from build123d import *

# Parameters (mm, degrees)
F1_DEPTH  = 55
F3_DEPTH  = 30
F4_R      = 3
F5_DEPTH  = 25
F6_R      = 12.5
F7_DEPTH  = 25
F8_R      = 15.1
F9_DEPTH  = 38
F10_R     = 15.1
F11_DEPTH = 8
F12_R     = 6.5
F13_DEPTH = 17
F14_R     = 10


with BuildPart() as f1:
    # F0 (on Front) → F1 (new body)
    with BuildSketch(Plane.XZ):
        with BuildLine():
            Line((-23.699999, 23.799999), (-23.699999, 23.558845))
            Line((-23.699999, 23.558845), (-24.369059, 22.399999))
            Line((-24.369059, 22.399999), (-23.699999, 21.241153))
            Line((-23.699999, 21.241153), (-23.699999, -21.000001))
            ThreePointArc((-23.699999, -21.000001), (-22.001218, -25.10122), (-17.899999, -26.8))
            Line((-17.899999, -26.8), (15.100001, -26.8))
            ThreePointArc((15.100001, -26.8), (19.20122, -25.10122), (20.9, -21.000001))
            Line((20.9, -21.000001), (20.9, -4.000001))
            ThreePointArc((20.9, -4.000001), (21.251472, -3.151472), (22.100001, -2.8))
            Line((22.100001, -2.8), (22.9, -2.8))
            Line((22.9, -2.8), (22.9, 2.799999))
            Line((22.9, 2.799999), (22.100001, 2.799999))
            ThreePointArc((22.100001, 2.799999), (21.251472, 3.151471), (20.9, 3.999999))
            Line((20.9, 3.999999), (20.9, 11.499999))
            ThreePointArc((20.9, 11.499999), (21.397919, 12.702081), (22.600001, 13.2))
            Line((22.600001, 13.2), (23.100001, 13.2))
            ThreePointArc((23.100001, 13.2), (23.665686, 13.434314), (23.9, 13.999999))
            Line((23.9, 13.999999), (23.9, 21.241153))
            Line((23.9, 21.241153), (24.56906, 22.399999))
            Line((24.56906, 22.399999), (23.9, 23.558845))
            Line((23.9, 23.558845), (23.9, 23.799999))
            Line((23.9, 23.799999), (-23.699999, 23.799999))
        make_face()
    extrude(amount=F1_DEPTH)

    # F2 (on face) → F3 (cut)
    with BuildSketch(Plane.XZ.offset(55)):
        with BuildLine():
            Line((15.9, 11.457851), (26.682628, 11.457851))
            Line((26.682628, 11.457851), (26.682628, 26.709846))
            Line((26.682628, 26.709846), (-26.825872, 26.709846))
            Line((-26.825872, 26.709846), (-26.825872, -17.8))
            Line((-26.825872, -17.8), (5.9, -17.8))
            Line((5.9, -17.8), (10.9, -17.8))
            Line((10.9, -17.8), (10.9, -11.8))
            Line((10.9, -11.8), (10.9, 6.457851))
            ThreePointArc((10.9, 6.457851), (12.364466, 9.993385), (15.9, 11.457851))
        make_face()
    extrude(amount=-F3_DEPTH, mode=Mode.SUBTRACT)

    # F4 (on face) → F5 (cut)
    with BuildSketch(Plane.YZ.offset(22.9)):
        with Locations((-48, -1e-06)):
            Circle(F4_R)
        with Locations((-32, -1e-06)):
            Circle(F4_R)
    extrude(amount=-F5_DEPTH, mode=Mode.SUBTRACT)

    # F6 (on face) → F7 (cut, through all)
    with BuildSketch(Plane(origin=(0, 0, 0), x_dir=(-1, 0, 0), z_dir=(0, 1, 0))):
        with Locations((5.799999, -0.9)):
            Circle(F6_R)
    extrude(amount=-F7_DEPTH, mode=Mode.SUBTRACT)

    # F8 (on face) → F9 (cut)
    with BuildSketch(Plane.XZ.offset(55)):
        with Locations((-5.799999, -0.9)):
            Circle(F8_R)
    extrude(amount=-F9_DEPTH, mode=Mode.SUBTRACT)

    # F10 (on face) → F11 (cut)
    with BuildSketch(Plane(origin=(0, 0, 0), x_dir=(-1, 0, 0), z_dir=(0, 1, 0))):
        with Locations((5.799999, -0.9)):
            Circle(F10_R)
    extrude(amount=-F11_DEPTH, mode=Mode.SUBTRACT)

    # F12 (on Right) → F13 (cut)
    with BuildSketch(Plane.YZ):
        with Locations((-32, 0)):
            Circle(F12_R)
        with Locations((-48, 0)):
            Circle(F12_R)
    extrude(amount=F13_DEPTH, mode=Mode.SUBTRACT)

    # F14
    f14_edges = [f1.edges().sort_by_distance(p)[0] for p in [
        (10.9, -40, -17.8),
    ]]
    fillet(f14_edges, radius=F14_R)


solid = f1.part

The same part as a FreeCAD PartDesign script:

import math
import FreeCAD as App
import Part
import Sketcher
Q = App.Units.Quantity


def edges_at(feature, points):
    """Names of the edges that pass closest to the given points."""
    edges = feature.Shape.Edges
    near = lambda p: min(range(len(edges)), key=lambda i: edges[i].distToShape(Part.Vertex(*p))[0])
    return sorted({f"Edge{near(p) + 1}" for p in points})

doc = App.newDocument("Part")
body = doc.addObject("PartDesign::Body", "Body")

sketch1 = doc.addObject("Sketcher::SketchObject", "Sketch")
body.addObject(sketch1)
sketch1.AttachmentSupport = (doc.XZ_Plane, [""])
sketch1.MapMode = "FlatFace"
sketch1.addGeometry(Part.LineSegment(App.Vector(-23.7, 23.8, 0), App.Vector(-23.7, 23.56, 0)), False)
sketch1.addGeometry(Part.LineSegment(App.Vector(-23.7, 23.56, 0), App.Vector(-24.37, 22.4, 0)), False)
sketch1.addGeometry(Part.LineSegment(App.Vector(-24.37, 22.4, 0), App.Vector(-23.7, 21.24, 0)), False)
sketch1.addGeometry(Part.LineSegment(App.Vector(-23.7, 21.24, 0), App.Vector(-23.7, -21, 0)), False)
sketch1.addGeometry(Part.ArcOfCircle(Part.Circle(App.Vector(-17.9, -21, 0), App.Vector(0, 0, 1), 5.8), math.radians(-180), math.radians(-90)), False)
sketch1.addGeometry(Part.LineSegment(App.Vector(-17.9, -26.8, 0), App.Vector(15.1, -26.8, 0)), False)
sketch1.addGeometry(Part.ArcOfCircle(Part.Circle(App.Vector(15.1, -21, 0), App.Vector(0, 0, 1), 5.8), math.radians(-90), math.radians(0)), False)
sketch1.addGeometry(Part.LineSegment(App.Vector(20.9, -21, 0), App.Vector(20.9, -4, 0)), False)
sketch1.addGeometry(Part.ArcOfCircle(Part.Circle(App.Vector(22.1, -4, 0), App.Vector(0, 0, 1), 1.2), math.radians(90), math.radians(180)), False)
sketch1.addGeometry(Part.LineSegment(App.Vector(22.1, -2.8, 0), App.Vector(22.9, -2.8, 0)), False)
sketch1.addGeometry(Part.LineSegment(App.Vector(22.9, -2.8, 0), App.Vector(22.9, 2.8, 0)), False)
sketch1.addGeometry(Part.LineSegment(App.Vector(22.9, 2.8, 0), App.Vector(22.1, 2.8, 0)), False)
sketch1.addGeometry(Part.ArcOfCircle(Part.Circle(App.Vector(22.1, 4, 0), App.Vector(0, 0, 1), 1.2), math.radians(-180), math.radians(-90)), False)
sketch1.addGeometry(Part.LineSegment(App.Vector(20.9, 4, 0), App.Vector(20.9, 11.5, 0)), False)
sketch1.addGeometry(Part.ArcOfCircle(Part.Circle(App.Vector(22.6, 11.5, 0), App.Vector(0, 0, 1), 1.7), math.radians(90), math.radians(180)), False)
sketch1.addGeometry(Part.LineSegment(App.Vector(22.6, 13.2, 0), App.Vector(23.1, 13.2, 0)), False)
sketch1.addGeometry(Part.ArcOfCircle(Part.Circle(App.Vector(23.1, 14, 0), App.Vector(0, 0, 1), 0.8), math.radians(-90), math.radians(0)), False)
sketch1.addGeometry(Part.LineSegment(App.Vector(23.9, 14, 0), App.Vector(23.9, 21.24, 0)), False)
sketch1.addGeometry(Part.LineSegment(App.Vector(23.9, 21.24, 0), App.Vector(24.57, 22.4, 0)), False)
sketch1.addGeometry(Part.LineSegment(App.Vector(24.57, 22.4, 0), App.Vector(23.9, 23.56, 0)), False)
sketch1.addGeometry(Part.LineSegment(App.Vector(23.9, 23.56, 0), App.Vector(23.9, 23.8, 0)), False)
sketch1.addGeometry(Part.LineSegment(App.Vector(23.9, 23.8, 0), App.Vector(-23.7, 23.8, 0)), False)
sketch1.addConstraint(Sketcher.Constraint("Coincident", 0, 2, 1, 1))
sketch1.addConstraint(Sketcher.Constraint("Coincident", 1, 2, 2, 1))
sketch1.addConstraint(Sketcher.Constraint("Coincident", 2, 2, 3, 1))
sketch1.addConstraint(Sketcher.Constraint("Tangent", 3, 2, 4, 1))
sketch1.addConstraint(Sketcher.Constraint("Tangent", 4, 2, 5, 1))
sketch1.addConstraint(Sketcher.Constraint("Tangent", 5, 2, 6, 1))
sketch1.addConstraint(Sketcher.Constraint("Tangent", 6, 2, 7, 1))
sketch1.addConstraint(Sketcher.Constraint("Tangent", 7, 2, 8, 2))
sketch1.addConstraint(Sketcher.Constraint("Tangent", 8, 1, 9, 1))
sketch1.addConstraint(Sketcher.Constraint("Coincident", 9, 2, 10, 1))
sketch1.addConstraint(Sketcher.Constraint("Coincident", 10, 2, 11, 1))
sketch1.addConstraint(Sketcher.Constraint("Tangent", 11, 2, 12, 2))
sketch1.addConstraint(Sketcher.Constraint("Tangent", 12, 1, 13, 1))
sketch1.addConstraint(Sketcher.Constraint("Tangent", 13, 2, 14, 2))
sketch1.addConstraint(Sketcher.Constraint("Tangent", 14, 1, 15, 1))
sketch1.addConstraint(Sketcher.Constraint("Tangent", 15, 2, 16, 1))
sketch1.addConstraint(Sketcher.Constraint("Tangent", 16, 2, 17, 1))
sketch1.addConstraint(Sketcher.Constraint("Coincident", 17, 2, 18, 1))
sketch1.addConstraint(Sketcher.Constraint("Coincident", 18, 2, 19, 1))
sketch1.addConstraint(Sketcher.Constraint("Coincident", 19, 2, 20, 1))
sketch1.addConstraint(Sketcher.Constraint("Coincident", 20, 2, 21, 1))
sketch1.addConstraint(Sketcher.Constraint("Coincident", 21, 2, 0, 1))
sketch1.addConstraint(Sketcher.Constraint("Vertical", 0))
sketch1.addConstraint(Sketcher.Constraint("Vertical", 3))
sketch1.addConstraint(Sketcher.Constraint("Horizontal", 5))
sketch1.addConstraint(Sketcher.Constraint("Vertical", 7))
sketch1.addConstraint(Sketcher.Constraint("Horizontal", 9))
sketch1.addConstraint(Sketcher.Constraint("Vertical", 10))
sketch1.addConstraint(Sketcher.Constraint("Horizontal", 11))
sketch1.addConstraint(Sketcher.Constraint("Vertical", 13))
sketch1.addConstraint(Sketcher.Constraint("Horizontal", 15))
sketch1.addConstraint(Sketcher.Constraint("Vertical", 17))
sketch1.addConstraint(Sketcher.Constraint("Vertical", 20))
sketch1.addConstraint(Sketcher.Constraint("Horizontal", 21))
sketch1.addConstraint(Sketcher.Constraint("Equal", 4, 6))
sketch1.addConstraint(Sketcher.Constraint("Equal", 8, 12))
sketch1.addConstraint(Sketcher.Constraint("Symmetric", 8, 3, 12, 3, -1))
sketch1.addConstraint(Sketcher.Constraint("Parallel", 1, 18))
sketch1.addConstraint(Sketcher.Constraint("Parallel", 2, 19))
sketch1.addConstraint(Sketcher.Constraint("Horizontal", 2, 2, 17, 2))
sketch1.addConstraint(Sketcher.Constraint("Horizontal", 1, 2, 18, 2))
sketch1.addConstraint(Sketcher.Constraint("Horizontal", 0, 2, 19, 2))
sketch1.addConstraint(Sketcher.Constraint("Vertical", 0, 2, 2, 2))
sketch1.addConstraint(Sketcher.Constraint("Vertical", 17, 2, 19, 2))
sketch1.addConstraint(Sketcher.Constraint("Radius", 4, 5.799999))
sketch1.addConstraint(Sketcher.Constraint("Radius", 8, 1.2))
sketch1.addConstraint(Sketcher.Constraint("Radius", 14, 1.700002))
sketch1.addConstraint(Sketcher.Constraint("Radius", 16, 0.799998))
sketch1.addConstraint(Sketcher.Constraint("DistanceX", 5, 1, 5, 2, 33.0))
sketch1.addConstraint(Sketcher.Constraint("DistanceY", 7, 1, 7, 2, 17.0))
sketch1.addConstraint(Sketcher.Constraint("Angle", 1, Q("-119.999998 deg")))
sketch1.addConstraint(Sketcher.Constraint("DistanceX", 9, 1, 9, 2, 0.799999))
sketch1.addConstraint(Sketcher.Constraint("DistanceX", 15, 1, 15, 2, 0.5))
sketch1.addConstraint(Sketcher.Constraint("DistanceY", 10, 1, 10, 2, 5.599999))
sketch1.addConstraint(Sketcher.Constraint("DistanceY", 13, 1, 13, 2, 7.5))
sketch1.addConstraint(Sketcher.Constraint("DistanceX", 4, 3, -1, 1, 17.9))
sketch1.addConstraint(Sketcher.Constraint("DistanceY", -1, 1, 1, 2, 22.399999))
sketch1.addConstraint(Sketcher.Constraint("DistanceY", -1, 1, 20, 2, 23.799999))
sketch1.addConstraint(Sketcher.Constraint("Distance", 1, 1.33812))
pad1 = doc.addObject("PartDesign::Pad", "Pad")
body.addObject(pad1)
pad1.Profile = sketch1
pad1.Length = 55

sketch2 = doc.addObject("Sketcher::SketchObject", "Sketch001")
body.addObject(sketch2)
sketch2.AttachmentSupport = (doc.XZ_Plane, [""])
sketch2.MapMode = "FlatFace"
sketch2.AttachmentOffset = App.Placement(App.Vector(0, 0, 55), App.Rotation())
sketch2.addGeometry(Part.LineSegment(App.Vector(15.9, 11.5, 0), App.Vector(26.7, 11.5, 0)), False)
sketch2.addGeometry(Part.LineSegment(App.Vector(26.7, 11.5, 0), App.Vector(26.7, 26.7, 0)), False)
sketch2.addGeometry(Part.LineSegment(App.Vector(26.7, 26.7, 0), App.Vector(-26.8, 26.7, 0)), False)
sketch2.addGeometry(Part.LineSegment(App.Vector(-26.8, 26.7, 0), App.Vector(-26.8, -17.8, 0)), False)
sketch2.addGeometry(Part.LineSegment(App.Vector(-26.8, -17.8, 0), App.Vector(10.9, -17.8, 0)), False)
sketch2.addGeometry(Part.LineSegment(App.Vector(10.9, -17.8, 0), App.Vector(10.9, 6.5, 0)), False)
sketch2.addGeometry(Part.ArcOfCircle(Part.Circle(App.Vector(15.9, 6.5, 0), App.Vector(0, 0, 1), 5), math.radians(90), math.radians(180)), False)
sketch2.addConstraint(Sketcher.Constraint("Coincident", 0, 2, 1, 1))
sketch2.addConstraint(Sketcher.Constraint("Coincident", 1, 2, 2, 1))
sketch2.addConstraint(Sketcher.Constraint("Coincident", 2, 2, 3, 1))
sketch2.addConstraint(Sketcher.Constraint("Coincident", 3, 2, 4, 1))
sketch2.addConstraint(Sketcher.Constraint("Coincident", 4, 2, 5, 1))
sketch2.addConstraint(Sketcher.Constraint("Tangent", 5, 2, 6, 2))
sketch2.addConstraint(Sketcher.Constraint("Tangent", 6, 1, 0, 1))
sketch2.addConstraint(Sketcher.Constraint("Horizontal", 0))
sketch2.addConstraint(Sketcher.Constraint("Vertical", 1))
sketch2.addConstraint(Sketcher.Constraint("Horizontal", 2))
sketch2.addConstraint(Sketcher.Constraint("Vertical", 3))
sketch2.addConstraint(Sketcher.Constraint("Horizontal", 4))
sketch2.addConstraint(Sketcher.Constraint("Vertical", 5))
sketch2.addConstraint(Sketcher.Constraint("Radius", 6, 5.0))
sketch2.addConstraint(Sketcher.Constraint("DistanceX", -1, 1, 6, 3, 15.9))
sketch2.addConstraint(Sketcher.Constraint("DistanceY", 3, 2, -1, 1, 17.8))
sketch2.addConstraint(Sketcher.Constraint("DistanceX", 2, 2, 2, 1, 53.5085))
sketch2.addConstraint(Sketcher.Constraint("DistanceX", 0, 1, 0, 2, 10.782628))
sketch2.addConstraint(Sketcher.Constraint("DistanceY", 5, 1, 5, 2, 24.257851))
sketch2.addConstraint(Sketcher.Constraint("DistanceY", 1, 1, 1, 2, 15.251995))
pocket1 = doc.addObject("PartDesign::Pocket", "Pocket")
body.addObject(pocket1)
pocket1.Profile = sketch2
pocket1.Length = 30

sketch3 = doc.addObject("Sketcher::SketchObject", "Sketch002")
body.addObject(sketch3)
sketch3.AttachmentSupport = (doc.YZ_Plane, [""])
sketch3.MapMode = "FlatFace"
sketch3.AttachmentOffset = App.Placement(App.Vector(0, 0, 22.9), App.Rotation())
sketch3.addGeometry(Part.Circle(App.Vector(-48, 0, 0), App.Vector(0, 0, 1), 3), False)
sketch3.addGeometry(Part.Circle(App.Vector(-32, 0, 0), App.Vector(0, 0, 1), 3), False)
sketch3.addConstraint(Sketcher.Constraint("Equal", 0, 1))
sketch3.addConstraint(Sketcher.Constraint("PointOnObject", 0, 3, -1))
sketch3.addConstraint(Sketcher.Constraint("PointOnObject", 1, 3, -1))
sketch3.addConstraint(Sketcher.Constraint("Diameter", 0, 6.0))
sketch3.addConstraint(Sketcher.Constraint("DistanceX", 0, 3, -1, 1, 48.0))
sketch3.addConstraint(Sketcher.Constraint("DistanceX", 1, 3, -1, 1, 32.0))
pocket2 = doc.addObject("PartDesign::Pocket", "Pocket001")
body.addObject(pocket2)
pocket2.Profile = sketch3
pocket2.Length = 25

sketch4 = doc.addObject("Sketcher::SketchObject", "Sketch003")
body.addObject(sketch4)
sketch4.AttachmentSupport = (doc.XZ_Plane, [""])
sketch4.MapMode = "FlatFace"
sketch4.addGeometry(Part.Circle(App.Vector(-6, -1, 0), App.Vector(0, 0, 1), 12), False)
sketch4.addConstraint(Sketcher.Constraint("Diameter", 0, 25.0))
sketch4.addConstraint(Sketcher.Constraint("DistanceX", 0, 3, -1, 1, 5.799999))
sketch4.addConstraint(Sketcher.Constraint("DistanceY", 0, 3, -1, 1, 0.9))
pocket3 = doc.addObject("PartDesign::Pocket", "Pocket002")
body.addObject(pocket3)
pocket3.Profile = sketch4
pocket3.Type = "ThroughAll"
pocket3.Reversed = True

sketch5 = doc.addObject("Sketcher::SketchObject", "Sketch004")
body.addObject(sketch5)
sketch5.AttachmentSupport = (doc.XZ_Plane, [""])
sketch5.MapMode = "FlatFace"
sketch5.AttachmentOffset = App.Placement(App.Vector(0, 0, 55), App.Rotation())
sketch5.addGeometry(Part.Circle(App.Vector(-6, -1, 0), App.Vector(0, 0, 1), 15), False)
sketch5.addConstraint(Sketcher.Constraint("Diameter", 0, 30.2))
sketch5.addConstraint(Sketcher.Constraint("DistanceX", 0, 3, -1, 1, 5.799999))
sketch5.addConstraint(Sketcher.Constraint("DistanceY", 0, 3, -1, 1, 0.9))
pocket4 = doc.addObject("PartDesign::Pocket", "Pocket003")
body.addObject(pocket4)
pocket4.Profile = sketch5
pocket4.Length = 38

sketch6 = doc.addObject("Sketcher::SketchObject", "Sketch005")
body.addObject(sketch6)
sketch6.AttachmentSupport = (doc.XZ_Plane, [""])
sketch6.MapMode = "FlatFace"
sketch6.addGeometry(Part.Circle(App.Vector(-6, -1, 0), App.Vector(0, 0, 1), 15), False)
sketch6.addConstraint(Sketcher.Constraint("Diameter", 0, 30.2))
sketch6.addConstraint(Sketcher.Constraint("DistanceX", 0, 3, -1, 1, 5.799999))
sketch6.addConstraint(Sketcher.Constraint("DistanceY", 0, 3, -1, 1, 0.9))
pocket5 = doc.addObject("PartDesign::Pocket", "Pocket004")
body.addObject(pocket5)
pocket5.Profile = sketch6
pocket5.Length = 8
pocket5.Reversed = True

sketch7 = doc.addObject("Sketcher::SketchObject", "Sketch006")
body.addObject(sketch7)
sketch7.AttachmentSupport = (doc.YZ_Plane, [""])
sketch7.MapMode = "FlatFace"
sketch7.addGeometry(Part.Circle(App.Vector(-32, 0, 0), App.Vector(0, 0, 1), 6), False)
sketch7.addGeometry(Part.Circle(App.Vector(-48, 0, 0), App.Vector(0, 0, 1), 6), False)
sketch7.addConstraint(Sketcher.Constraint("Equal", 0, 1))
sketch7.addConstraint(Sketcher.Constraint("PointOnObject", 0, 3, -1))
sketch7.addConstraint(Sketcher.Constraint("PointOnObject", 1, 3, -1))
sketch7.addConstraint(Sketcher.Constraint("Diameter", 0, 13.0))
sketch7.addConstraint(Sketcher.Constraint("DistanceX", 0, 3, -1, 1, 32.0))
sketch7.addConstraint(Sketcher.Constraint("DistanceX", 1, 3, -1, 1, 48.0))
pocket6 = doc.addObject("PartDesign::Pocket", "Pocket005")
body.addObject(pocket6)
pocket6.Profile = sketch7
pocket6.Length = 17
pocket6.Reversed = True
doc.recompute()

fillet = doc.addObject("PartDesign::Fillet", "Fillet")
body.addObject(fillet)
fillet.Base = (pocket6, edges_at(pocket6, [(10.9, -40, -17.8)]))
fillet.Radius = 10

doc.recompute()
